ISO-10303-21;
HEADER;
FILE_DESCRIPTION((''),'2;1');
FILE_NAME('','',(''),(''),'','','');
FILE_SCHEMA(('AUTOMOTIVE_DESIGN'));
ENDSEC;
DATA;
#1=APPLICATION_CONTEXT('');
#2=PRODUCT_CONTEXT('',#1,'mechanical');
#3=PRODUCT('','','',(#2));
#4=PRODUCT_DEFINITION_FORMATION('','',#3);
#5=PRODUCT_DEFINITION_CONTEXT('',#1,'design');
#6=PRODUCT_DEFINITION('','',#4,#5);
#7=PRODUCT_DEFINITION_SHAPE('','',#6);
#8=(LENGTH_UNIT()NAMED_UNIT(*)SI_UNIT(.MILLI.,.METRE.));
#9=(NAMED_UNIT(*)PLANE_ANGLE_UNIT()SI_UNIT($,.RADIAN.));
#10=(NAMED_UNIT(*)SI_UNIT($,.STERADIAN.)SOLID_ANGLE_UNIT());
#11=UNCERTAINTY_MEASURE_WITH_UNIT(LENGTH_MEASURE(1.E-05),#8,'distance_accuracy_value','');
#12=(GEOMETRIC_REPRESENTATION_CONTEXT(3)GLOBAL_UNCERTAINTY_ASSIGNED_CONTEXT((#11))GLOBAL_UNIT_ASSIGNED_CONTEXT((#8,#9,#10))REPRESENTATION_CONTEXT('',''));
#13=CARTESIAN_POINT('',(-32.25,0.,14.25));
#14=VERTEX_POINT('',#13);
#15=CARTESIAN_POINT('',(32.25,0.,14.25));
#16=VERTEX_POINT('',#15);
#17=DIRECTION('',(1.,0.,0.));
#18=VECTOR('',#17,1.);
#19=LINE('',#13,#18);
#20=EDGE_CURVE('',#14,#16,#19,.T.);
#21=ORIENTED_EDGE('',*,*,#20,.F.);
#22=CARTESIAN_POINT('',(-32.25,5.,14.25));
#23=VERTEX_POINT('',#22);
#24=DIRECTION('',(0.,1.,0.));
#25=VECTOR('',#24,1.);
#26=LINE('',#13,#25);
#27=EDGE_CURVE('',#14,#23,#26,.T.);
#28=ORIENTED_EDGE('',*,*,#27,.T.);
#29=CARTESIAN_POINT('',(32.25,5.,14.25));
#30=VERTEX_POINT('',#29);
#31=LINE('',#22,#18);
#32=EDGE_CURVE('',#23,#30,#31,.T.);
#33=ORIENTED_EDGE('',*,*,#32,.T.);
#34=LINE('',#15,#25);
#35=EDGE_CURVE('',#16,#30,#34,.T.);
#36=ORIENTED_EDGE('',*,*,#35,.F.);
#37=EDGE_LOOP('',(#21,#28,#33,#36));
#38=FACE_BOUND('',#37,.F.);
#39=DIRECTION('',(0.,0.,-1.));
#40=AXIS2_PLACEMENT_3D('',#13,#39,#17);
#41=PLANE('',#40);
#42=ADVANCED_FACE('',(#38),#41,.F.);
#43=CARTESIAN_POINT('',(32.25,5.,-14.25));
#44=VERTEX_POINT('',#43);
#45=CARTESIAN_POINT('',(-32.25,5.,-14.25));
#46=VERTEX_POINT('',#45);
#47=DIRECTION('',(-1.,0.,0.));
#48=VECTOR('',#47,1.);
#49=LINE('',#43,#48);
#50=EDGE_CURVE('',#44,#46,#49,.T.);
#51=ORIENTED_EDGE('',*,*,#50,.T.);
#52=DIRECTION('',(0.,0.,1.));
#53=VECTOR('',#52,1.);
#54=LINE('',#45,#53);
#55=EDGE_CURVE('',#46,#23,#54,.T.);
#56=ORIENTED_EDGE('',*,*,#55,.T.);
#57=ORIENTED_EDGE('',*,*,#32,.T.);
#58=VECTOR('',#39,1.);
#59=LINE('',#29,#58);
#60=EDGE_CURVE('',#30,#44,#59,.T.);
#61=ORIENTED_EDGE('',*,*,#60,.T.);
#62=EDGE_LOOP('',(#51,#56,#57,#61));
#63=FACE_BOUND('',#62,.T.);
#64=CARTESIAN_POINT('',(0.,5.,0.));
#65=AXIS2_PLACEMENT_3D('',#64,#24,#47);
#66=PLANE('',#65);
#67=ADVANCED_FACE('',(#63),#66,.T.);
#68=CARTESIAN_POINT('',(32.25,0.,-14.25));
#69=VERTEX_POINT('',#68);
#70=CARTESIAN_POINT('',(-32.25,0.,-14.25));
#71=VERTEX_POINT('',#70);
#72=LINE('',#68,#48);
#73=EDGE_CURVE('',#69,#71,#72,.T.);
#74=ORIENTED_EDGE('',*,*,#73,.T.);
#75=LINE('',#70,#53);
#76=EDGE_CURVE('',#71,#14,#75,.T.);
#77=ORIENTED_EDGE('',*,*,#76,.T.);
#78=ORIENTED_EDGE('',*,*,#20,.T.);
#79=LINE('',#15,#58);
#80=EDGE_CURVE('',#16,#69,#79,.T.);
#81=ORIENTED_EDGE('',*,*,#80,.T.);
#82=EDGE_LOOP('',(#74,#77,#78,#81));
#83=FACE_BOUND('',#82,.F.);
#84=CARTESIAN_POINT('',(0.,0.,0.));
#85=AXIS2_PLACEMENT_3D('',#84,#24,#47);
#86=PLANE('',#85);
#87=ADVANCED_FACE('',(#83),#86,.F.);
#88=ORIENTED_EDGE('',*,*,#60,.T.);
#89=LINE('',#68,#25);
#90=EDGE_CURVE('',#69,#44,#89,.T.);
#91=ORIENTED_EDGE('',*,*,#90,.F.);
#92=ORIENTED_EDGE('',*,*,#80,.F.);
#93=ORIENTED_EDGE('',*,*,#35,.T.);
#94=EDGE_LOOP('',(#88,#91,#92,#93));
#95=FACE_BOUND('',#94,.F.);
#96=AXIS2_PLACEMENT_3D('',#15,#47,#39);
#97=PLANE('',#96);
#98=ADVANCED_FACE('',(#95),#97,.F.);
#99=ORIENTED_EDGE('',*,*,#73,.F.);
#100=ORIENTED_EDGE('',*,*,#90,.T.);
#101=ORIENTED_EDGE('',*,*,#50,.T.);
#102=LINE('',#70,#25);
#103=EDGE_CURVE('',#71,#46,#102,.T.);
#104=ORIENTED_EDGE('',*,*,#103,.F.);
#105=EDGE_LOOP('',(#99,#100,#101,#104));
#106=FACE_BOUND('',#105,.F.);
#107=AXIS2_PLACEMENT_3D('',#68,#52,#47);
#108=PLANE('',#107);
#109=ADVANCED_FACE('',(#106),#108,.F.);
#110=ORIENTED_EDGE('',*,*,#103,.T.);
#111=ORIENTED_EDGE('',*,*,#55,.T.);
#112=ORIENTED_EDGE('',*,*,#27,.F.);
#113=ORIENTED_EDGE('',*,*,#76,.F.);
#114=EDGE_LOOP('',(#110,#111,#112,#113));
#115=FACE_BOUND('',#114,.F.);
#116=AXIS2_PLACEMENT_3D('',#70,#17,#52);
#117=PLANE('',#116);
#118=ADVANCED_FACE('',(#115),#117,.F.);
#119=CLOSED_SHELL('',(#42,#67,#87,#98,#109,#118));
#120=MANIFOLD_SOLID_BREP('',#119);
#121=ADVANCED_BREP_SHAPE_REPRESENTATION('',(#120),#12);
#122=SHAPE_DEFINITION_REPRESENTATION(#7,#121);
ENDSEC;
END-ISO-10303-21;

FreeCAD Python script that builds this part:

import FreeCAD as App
import Part
import Sketcher
from FreeCAD import Vector

doc = App.newDocument("Part")
body = doc.addObject("PartDesign::Body", "Body")

# Sketch on XZ plane
sketch1 = body.newObject("Sketcher::SketchObject", "Sketch")
sketch1.AttachmentSupport = (doc.getObject("XZ_Plane"), [""])
sketch1.MapMode = "FlatFace"
sketch1.addGeometry(Part.LineSegment(Vector(32, 14, 0), Vector(32, -14, 0)), False)
sketch1.addGeometry(Part.LineSegment(Vector(32, -14, 0), Vector(-32, -14, 0)), False)
sketch1.addGeometry(Part.LineSegment(Vector(-32, -14, 0), Vector(-32, 14, 0)), False)
sketch1.addGeometry(Part.LineSegment(Vector(-32, 14, 0), Vector(32, 14, 0)), False)
sketch1.addConstraint(Sketcher.Constraint("Coincident", 0, 2, 1, 1))
sketch1.addConstraint(Sketcher.Constraint("Coincident", 1, 2, 2, 1))
sketch1.addConstraint(Sketcher.Constraint("Coincident", 2, 2, 3, 1))
sketch1.addConstraint(Sketcher.Constraint("Coincident", 3, 2, 0, 1))
sketch1.addConstraint(Sketcher.Constraint("Vertical", 0))
sketch1.addConstraint(Sketcher.Constraint("Horizontal", 1))
sketch1.addConstraint(Sketcher.Constraint("Vertical", 2))
sketch1.addConstraint(Sketcher.Constraint("Horizontal", 3))
sketch1.addConstraint(Sketcher.Constraint("Symmetric", 0, 2, 2, 2, -1, 1))
sketch1.addConstraint(Sketcher.Constraint("DistanceX", 1, 2, 1, 1, 64.5))
sketch1.addConstraint(Sketcher.Constraint("DistanceY", 0, 2, 0, 1, 28.5))
pad1 = body.newObject("PartDesign::Pad", "Pad")
pad1.Profile = sketch1
pad1.Length = 5
pad1.Reversed = True

doc.recompute()
